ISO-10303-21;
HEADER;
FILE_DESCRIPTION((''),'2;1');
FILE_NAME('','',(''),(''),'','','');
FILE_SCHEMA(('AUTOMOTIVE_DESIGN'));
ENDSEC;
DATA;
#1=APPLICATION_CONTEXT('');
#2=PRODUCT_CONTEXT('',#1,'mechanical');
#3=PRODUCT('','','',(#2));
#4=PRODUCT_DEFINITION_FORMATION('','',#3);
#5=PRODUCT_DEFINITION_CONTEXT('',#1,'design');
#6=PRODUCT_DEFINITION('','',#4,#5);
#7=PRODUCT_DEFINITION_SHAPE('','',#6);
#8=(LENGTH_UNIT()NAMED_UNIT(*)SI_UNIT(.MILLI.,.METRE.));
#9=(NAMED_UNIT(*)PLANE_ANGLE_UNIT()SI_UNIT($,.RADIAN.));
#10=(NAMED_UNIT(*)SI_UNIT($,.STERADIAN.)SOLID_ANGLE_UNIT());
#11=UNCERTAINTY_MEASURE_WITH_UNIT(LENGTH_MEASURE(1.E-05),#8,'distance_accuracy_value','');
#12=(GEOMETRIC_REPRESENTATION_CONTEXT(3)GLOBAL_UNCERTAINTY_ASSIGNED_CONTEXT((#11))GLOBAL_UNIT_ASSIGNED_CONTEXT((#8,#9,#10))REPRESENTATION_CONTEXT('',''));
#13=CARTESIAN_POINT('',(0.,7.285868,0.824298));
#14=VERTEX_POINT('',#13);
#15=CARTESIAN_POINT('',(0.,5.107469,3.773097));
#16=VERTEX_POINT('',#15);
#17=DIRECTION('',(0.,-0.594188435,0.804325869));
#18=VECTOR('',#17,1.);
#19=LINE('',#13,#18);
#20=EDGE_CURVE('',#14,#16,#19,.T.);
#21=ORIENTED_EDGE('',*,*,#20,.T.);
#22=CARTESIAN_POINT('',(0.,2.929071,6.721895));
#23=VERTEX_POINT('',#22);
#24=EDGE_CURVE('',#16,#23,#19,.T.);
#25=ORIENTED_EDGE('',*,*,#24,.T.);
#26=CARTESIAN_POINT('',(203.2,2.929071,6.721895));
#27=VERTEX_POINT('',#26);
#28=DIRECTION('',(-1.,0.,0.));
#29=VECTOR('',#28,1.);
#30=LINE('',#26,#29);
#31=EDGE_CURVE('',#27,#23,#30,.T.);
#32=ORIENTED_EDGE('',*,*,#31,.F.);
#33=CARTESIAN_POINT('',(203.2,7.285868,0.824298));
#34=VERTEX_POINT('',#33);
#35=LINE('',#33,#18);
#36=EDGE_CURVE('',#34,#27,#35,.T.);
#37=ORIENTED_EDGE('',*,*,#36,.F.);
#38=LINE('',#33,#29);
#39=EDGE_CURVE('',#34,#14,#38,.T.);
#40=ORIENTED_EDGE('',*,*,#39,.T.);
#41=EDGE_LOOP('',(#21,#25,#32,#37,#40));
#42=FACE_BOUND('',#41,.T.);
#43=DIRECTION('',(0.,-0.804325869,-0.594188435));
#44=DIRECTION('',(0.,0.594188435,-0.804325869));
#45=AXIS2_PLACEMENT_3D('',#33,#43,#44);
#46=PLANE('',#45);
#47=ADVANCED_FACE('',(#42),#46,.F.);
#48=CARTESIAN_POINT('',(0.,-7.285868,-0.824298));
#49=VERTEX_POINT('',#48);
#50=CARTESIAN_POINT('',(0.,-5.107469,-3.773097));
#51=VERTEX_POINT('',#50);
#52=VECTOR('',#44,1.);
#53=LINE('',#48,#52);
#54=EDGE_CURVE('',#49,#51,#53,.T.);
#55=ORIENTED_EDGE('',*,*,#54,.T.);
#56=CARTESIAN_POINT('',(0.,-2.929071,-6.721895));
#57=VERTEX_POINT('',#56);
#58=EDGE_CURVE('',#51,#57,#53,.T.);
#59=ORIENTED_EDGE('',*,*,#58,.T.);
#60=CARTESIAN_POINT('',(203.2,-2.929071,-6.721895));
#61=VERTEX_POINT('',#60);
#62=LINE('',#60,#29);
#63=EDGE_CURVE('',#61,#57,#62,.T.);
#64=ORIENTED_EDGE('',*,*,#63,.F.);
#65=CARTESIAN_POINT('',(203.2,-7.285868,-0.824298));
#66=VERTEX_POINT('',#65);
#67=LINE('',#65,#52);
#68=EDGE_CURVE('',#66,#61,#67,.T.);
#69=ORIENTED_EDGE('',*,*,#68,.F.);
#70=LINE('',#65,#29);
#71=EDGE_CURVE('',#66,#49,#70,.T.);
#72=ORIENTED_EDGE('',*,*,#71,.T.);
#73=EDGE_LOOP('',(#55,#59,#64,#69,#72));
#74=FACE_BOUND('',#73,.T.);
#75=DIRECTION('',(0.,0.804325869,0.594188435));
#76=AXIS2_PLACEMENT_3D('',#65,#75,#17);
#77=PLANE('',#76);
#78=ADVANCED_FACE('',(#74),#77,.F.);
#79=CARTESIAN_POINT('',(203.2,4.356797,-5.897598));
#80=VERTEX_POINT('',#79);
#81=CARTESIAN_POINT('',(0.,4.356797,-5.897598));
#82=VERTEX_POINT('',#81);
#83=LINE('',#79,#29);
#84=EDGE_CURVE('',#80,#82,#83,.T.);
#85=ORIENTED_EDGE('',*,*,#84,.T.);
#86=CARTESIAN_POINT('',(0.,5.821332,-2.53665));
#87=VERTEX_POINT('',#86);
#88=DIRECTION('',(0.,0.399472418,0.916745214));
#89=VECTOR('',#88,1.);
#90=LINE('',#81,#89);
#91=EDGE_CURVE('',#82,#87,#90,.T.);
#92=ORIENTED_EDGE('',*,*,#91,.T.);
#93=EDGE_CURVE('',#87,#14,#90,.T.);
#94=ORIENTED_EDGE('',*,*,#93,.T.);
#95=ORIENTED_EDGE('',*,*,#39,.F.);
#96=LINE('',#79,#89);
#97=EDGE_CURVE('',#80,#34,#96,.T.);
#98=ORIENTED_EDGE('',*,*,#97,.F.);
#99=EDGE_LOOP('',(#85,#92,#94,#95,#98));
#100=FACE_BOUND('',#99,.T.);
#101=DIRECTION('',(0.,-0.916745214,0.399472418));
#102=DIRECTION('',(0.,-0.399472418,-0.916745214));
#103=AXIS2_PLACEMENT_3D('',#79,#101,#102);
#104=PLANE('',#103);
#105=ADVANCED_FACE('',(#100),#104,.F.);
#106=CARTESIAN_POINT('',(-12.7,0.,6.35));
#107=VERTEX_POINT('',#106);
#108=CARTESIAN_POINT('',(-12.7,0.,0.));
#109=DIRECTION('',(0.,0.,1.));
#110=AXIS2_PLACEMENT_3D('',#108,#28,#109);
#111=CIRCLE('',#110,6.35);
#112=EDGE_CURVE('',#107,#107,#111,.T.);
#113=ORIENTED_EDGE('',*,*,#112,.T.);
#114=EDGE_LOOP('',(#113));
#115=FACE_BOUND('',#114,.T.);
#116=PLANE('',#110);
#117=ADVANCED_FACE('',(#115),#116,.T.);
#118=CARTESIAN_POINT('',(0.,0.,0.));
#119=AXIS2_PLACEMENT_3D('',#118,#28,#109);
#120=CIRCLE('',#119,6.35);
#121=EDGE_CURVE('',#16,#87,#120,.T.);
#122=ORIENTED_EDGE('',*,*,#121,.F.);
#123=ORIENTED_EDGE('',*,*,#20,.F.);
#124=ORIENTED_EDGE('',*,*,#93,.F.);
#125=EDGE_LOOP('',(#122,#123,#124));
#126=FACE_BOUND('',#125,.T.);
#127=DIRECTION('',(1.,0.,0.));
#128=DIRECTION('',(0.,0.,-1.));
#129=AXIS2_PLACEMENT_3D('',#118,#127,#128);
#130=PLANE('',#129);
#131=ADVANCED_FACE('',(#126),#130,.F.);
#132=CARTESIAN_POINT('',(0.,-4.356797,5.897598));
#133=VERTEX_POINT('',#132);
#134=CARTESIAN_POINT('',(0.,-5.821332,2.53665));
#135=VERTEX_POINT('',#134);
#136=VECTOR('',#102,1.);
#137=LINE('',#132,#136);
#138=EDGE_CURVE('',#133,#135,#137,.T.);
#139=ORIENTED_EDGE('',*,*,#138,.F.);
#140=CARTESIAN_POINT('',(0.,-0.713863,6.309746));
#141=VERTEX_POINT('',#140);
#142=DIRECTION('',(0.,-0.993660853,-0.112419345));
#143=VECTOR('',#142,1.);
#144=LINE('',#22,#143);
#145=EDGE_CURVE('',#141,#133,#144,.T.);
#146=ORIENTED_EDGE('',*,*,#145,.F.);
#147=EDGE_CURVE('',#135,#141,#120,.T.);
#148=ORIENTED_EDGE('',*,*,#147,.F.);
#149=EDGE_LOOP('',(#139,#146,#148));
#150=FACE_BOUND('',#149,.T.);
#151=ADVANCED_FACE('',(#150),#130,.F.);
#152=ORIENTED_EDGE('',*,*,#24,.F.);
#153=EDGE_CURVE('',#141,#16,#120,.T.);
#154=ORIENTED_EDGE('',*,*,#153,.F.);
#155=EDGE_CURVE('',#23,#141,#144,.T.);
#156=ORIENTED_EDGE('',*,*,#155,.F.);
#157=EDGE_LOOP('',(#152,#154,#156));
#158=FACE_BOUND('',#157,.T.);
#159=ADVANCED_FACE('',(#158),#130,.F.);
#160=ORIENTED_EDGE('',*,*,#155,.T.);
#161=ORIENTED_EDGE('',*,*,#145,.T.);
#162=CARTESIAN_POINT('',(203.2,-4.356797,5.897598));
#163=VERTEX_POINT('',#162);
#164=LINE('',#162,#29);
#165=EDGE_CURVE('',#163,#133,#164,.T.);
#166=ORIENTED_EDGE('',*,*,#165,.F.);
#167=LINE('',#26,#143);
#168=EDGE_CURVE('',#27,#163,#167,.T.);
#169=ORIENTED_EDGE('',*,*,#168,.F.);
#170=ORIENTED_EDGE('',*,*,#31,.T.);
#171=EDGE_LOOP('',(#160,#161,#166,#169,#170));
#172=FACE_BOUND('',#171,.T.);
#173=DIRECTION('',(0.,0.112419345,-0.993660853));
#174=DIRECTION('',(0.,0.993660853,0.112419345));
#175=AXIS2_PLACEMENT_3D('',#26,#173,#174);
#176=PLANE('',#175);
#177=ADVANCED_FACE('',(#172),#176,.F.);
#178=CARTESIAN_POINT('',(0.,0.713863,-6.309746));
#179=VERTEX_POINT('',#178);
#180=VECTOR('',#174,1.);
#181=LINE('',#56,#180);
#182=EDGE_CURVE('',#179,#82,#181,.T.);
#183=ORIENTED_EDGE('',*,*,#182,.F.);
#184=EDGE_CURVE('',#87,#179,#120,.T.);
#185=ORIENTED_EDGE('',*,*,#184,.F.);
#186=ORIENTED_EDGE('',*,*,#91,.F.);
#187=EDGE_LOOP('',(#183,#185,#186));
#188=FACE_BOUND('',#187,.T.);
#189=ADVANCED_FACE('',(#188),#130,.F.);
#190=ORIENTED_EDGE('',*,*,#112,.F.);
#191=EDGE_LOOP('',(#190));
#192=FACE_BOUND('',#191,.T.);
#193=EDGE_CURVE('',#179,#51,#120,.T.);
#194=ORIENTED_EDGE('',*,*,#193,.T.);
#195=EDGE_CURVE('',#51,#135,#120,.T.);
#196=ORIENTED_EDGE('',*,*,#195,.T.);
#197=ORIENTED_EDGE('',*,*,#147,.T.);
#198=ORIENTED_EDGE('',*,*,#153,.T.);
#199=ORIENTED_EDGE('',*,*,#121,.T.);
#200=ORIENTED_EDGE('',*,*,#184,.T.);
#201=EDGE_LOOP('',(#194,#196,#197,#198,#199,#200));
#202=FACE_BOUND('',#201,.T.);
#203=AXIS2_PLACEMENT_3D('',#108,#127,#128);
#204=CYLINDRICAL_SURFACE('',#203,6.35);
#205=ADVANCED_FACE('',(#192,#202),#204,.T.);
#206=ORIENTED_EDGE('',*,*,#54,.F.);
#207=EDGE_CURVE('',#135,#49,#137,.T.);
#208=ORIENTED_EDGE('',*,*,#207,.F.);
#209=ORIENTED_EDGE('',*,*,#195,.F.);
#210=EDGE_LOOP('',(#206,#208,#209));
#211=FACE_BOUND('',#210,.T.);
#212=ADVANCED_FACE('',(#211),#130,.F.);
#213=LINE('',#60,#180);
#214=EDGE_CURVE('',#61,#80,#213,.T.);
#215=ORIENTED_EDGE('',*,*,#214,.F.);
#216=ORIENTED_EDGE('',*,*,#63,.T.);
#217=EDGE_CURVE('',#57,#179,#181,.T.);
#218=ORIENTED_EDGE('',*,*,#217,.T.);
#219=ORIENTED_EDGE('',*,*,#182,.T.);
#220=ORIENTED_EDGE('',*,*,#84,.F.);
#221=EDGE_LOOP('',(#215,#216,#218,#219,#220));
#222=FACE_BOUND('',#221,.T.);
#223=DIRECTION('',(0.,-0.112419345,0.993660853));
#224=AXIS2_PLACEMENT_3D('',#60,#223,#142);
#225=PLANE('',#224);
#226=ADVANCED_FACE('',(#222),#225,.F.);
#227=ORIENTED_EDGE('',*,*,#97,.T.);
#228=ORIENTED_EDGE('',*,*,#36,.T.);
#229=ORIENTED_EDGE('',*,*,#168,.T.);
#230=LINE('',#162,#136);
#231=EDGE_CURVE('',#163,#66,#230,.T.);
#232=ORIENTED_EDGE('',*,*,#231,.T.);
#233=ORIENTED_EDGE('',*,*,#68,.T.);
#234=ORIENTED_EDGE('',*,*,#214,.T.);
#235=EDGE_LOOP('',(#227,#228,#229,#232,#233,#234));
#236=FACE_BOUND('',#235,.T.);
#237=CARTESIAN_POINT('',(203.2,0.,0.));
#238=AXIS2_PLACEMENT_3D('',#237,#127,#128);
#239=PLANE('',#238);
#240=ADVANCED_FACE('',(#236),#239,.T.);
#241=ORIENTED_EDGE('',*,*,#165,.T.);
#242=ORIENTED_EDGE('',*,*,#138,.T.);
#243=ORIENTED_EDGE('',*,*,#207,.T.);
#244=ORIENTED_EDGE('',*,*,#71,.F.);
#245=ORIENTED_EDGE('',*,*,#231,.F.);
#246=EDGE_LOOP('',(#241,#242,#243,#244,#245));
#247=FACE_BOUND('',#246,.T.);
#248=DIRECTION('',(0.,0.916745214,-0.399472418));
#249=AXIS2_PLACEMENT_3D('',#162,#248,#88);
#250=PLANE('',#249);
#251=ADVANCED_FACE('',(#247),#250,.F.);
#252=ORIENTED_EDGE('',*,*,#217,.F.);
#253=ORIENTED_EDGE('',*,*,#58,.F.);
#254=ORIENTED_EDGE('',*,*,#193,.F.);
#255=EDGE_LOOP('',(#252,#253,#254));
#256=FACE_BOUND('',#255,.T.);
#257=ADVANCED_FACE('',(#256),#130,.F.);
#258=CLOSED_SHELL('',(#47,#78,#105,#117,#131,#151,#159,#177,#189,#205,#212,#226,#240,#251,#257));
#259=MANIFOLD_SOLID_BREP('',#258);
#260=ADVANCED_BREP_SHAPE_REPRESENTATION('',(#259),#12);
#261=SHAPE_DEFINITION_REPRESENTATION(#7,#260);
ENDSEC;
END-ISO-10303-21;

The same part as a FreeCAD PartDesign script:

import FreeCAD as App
import Part
import Sketcher
Q = App.Units.Quantity

doc = App.newDocument("Part")
params = doc.addObject("Spreadsheet::Sheet", "Params")
for row, (alias, value) in enumerate([
    ("pad1_length", "8 in"),
    ("sketch2_diameter", "0.5 in"),
    ("pad2_length", "0.5 in"),
], start=1):
    params.set(f"A{row}", alias)
    params.set(f"B{row}", "=" + value)
    params.setAlias(f"B{row}", alias)

body = doc.addObject("PartDesign::Body", "Body")

sketch1 = doc.addObject("Sketcher::SketchObject", "Sketch")
body.addObject(sketch1)
sketch1.AttachmentSupport = (doc.YZ_Plane, [""])
sketch1.MapMode = "FlatFace"
sketch1.addGeometry([
    Part.LineSegment(App.Vector(-3, -7, 0), App.Vector(4, -6, 0)),
    Part.LineSegment(App.Vector(4, -6, 0), App.Vector(7, 1, 0)),
    Part.LineSegment(App.Vector(7, 1, 0), App.Vector(3, 7, 0)),
    Part.LineSegment(App.Vector(3, 7, 0), App.Vector(-4, 6, 0)),
    Part.LineSegment(App.Vector(-4, 6, 0), App.Vector(-7, -1, 0)),
    Part.LineSegment(App.Vector(-7, -1, 0), App.Vector(-3, -7, 0)),
], False)
sketch1.addConstraint([
    Sketcher.Constraint("Coincident", 0, 2, 1, 1),
    Sketcher.Constraint("Coincident", 1, 2, 2, 1),
    Sketcher.Constraint("Coincident", 2, 2, 3, 1),
    Sketcher.Constraint("Coincident", 3, 2, 4, 1),
    Sketcher.Constraint("Coincident", 4, 2, 5, 1),
    Sketcher.Constraint("Coincident", 5, 2, 0, 1),
    Sketcher.Constraint("Symmetric", 0, 2, 3, 2, -1, 1),
    Sketcher.Constraint("Symmetric", 1, 2, 4, 2, -1, 1),
    Sketcher.Constraint("Symmetric", 2, 2, 5, 2, -1, 1),
    Sketcher.Constraint("Equal", 0, 1),
    Sketcher.Constraint("Equal", 1, 2),
    Sketcher.Constraint("DistanceY", 1, 2, 3, 2, Q("5.0733 mm")),
    Sketcher.Constraint("Distance", 0, Q("7.332348 mm")),
    Sketcher.Constraint("DistanceX", -1, 1, 2, 2, Q("2.929071 mm")),
    Sketcher.Constraint("DistanceX", 0, 2, 1, 2, Q("2.929071 mm")),
])
pad1 = doc.addObject("PartDesign::Pad", "Pad")
body.addObject(pad1)
pad1.Profile = sketch1
pad1.setExpression("Length", "Params.pad1_length")

sketch2 = doc.addObject("Sketcher::SketchObject", "Sketch001")
body.addObject(sketch2)
sketch2.AttachmentSupport = (doc.YZ_Plane, [""])
sketch2.MapMode = "FlatFace"
sketch2.addGeometry(Part.Circle(App.Vector(0, 0, 0), App.Vector(0, 0, 1), 6), False)
sketch2.addConstraint([
    Sketcher.Constraint("Coincident", 0, 3, -1, 1),
    Sketcher.Constraint("Diameter", 0, Q("0.5 in")),
])
sketch2.setExpression("Constraints[1]", "Params.sketch2_diameter")
pad2 = doc.addObject("PartDesign::Pad", "Pad001")
body.addObject(pad2)
pad2.Profile = sketch2
pad2.setExpression("Length", "Params.pad2_length")
pad2.Reversed = True

doc.recompute()
